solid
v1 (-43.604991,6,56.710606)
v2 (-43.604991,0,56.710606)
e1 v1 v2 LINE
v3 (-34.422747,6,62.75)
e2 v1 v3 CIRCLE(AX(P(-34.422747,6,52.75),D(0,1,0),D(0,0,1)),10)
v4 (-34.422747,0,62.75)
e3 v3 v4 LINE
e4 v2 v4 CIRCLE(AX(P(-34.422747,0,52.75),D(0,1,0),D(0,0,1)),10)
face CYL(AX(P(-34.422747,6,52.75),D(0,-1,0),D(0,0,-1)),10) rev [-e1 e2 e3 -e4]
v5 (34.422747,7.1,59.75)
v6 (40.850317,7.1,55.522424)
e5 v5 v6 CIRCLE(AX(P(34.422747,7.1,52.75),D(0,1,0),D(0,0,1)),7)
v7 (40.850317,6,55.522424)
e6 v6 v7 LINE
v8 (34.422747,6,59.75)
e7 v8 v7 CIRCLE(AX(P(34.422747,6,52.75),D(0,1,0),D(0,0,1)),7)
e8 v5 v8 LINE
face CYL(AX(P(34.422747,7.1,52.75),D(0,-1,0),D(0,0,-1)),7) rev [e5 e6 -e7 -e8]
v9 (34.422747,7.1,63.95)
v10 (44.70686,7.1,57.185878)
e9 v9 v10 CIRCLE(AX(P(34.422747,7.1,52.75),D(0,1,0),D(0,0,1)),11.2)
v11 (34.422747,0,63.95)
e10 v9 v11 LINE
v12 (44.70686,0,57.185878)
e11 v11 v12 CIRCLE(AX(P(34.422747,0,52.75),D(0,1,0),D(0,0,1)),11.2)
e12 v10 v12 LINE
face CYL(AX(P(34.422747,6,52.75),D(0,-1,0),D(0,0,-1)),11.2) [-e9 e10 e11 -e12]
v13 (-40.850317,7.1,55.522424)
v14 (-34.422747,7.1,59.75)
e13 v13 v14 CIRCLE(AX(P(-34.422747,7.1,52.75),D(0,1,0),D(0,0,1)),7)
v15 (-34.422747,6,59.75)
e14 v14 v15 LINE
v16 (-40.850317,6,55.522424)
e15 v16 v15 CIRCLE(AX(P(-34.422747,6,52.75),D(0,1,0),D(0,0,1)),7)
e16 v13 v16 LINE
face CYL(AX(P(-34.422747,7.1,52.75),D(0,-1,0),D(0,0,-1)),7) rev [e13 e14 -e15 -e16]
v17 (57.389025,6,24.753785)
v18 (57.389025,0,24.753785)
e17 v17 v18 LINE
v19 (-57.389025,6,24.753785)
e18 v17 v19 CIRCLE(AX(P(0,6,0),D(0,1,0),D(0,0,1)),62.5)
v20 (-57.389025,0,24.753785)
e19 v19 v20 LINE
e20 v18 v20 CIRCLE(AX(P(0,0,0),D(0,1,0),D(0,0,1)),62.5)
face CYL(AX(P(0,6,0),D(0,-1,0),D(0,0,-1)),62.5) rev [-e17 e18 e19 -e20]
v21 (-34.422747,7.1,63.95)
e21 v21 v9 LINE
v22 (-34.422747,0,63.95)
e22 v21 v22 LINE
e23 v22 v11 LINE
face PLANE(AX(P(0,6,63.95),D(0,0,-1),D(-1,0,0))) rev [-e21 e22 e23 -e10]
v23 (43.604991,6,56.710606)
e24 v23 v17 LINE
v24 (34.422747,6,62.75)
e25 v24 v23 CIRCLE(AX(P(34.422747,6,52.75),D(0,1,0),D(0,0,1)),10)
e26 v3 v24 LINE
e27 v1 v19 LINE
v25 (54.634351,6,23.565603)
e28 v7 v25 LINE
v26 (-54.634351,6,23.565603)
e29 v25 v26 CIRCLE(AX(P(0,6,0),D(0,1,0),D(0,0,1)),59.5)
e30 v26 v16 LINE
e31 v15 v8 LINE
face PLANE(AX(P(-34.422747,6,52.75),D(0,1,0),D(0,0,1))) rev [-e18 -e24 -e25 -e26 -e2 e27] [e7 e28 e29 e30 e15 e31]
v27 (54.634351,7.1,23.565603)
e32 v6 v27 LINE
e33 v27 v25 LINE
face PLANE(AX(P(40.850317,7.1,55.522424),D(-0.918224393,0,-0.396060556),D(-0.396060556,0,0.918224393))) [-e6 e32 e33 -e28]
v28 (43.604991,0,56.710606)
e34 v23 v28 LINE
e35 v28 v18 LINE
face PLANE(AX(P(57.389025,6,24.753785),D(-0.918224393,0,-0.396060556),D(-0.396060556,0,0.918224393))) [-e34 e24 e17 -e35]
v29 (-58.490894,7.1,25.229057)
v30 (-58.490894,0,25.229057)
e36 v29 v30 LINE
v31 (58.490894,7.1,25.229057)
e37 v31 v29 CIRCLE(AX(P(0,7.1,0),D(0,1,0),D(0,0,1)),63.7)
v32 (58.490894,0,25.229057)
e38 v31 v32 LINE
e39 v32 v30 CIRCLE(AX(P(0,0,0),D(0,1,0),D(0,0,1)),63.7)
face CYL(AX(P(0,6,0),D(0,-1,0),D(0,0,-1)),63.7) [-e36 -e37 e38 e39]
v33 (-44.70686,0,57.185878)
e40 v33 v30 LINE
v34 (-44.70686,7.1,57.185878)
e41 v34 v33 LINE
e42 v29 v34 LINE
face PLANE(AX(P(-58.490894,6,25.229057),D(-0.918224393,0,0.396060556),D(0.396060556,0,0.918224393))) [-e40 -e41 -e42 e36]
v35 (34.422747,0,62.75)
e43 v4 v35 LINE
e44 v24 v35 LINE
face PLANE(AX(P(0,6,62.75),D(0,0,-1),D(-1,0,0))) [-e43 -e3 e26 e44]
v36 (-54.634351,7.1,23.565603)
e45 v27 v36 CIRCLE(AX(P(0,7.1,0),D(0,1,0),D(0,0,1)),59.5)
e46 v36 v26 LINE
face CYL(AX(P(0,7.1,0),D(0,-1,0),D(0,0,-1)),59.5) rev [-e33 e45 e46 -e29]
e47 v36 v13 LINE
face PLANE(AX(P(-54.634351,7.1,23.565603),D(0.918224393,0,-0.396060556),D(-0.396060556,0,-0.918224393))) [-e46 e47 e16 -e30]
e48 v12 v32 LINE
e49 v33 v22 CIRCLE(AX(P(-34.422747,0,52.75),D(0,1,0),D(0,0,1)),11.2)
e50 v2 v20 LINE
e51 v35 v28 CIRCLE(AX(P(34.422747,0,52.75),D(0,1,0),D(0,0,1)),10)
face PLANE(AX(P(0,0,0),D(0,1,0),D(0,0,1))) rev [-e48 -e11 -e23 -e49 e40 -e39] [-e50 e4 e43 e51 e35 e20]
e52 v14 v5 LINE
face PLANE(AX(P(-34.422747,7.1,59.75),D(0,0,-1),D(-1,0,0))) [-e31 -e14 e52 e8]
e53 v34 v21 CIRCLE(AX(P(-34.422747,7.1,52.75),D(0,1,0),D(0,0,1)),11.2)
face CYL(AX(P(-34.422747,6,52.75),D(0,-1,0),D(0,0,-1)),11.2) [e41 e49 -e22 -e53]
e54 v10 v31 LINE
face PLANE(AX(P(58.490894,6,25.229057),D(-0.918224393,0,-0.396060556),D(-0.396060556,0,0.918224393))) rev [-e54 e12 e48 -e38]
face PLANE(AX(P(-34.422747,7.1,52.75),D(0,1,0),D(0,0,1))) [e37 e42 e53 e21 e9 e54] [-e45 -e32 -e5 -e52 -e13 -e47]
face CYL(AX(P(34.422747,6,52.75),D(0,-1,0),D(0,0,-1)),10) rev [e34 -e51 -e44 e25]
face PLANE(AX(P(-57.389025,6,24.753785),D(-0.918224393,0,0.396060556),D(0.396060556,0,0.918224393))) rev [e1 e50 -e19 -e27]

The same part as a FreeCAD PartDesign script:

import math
import FreeCAD as App
import Part
import Sketcher

V = App.Vector
Q = App.Units.Quantity

doc = App.newDocument("Part")
body = doc.addObject("PartDesign::Body", "Body")

# Sketch on XZ plane
sketch1 = doc.addObject("Sketcher::SketchObject", "Sketch")
body.addObject(sketch1)
sketch1.AttachmentSupport = (doc.XZ_Plane, [""])
sketch1.MapMode = "FlatFace"
sketch1.addGeometry([
    Part.ArcOfCircle(Part.Circle(V(34, 53, 0), V(0, 0, 1), 11), math.radians(23), math.radians(90)),  # 0
    Part.LineSegment(V(45, 57, 0), V(58, 25, 0)),  # 1
    Part.ArcOfCircle(Part.Circle(V(0, 0, 0), V(0, 0, 1), 64), math.radians(157), math.radians(383)),  # 2
    Part.LineSegment(V(-58, 25, 0), V(-45, 57, 0)),  # 3
    Part.ArcOfCircle(Part.Circle(V(-34, 53, 0), V(0, 0, 1), 11), math.radians(90), math.radians(157)),  # 4
    Part.LineSegment(V(-34, 64, 0), V(34, 64, 0)),  # 5
    Part.ArcOfCircle(Part.Circle(V(34, 53, 0), V(0, 0, 1), 10), math.radians(23), math.radians(90)),  # 6
    Part.LineSegment(V(34, 63, 0), V(-34, 63, 0)),  # 7
    Part.ArcOfCircle(Part.Circle(V(-34, 53, 0), V(0, 0, 1), 10), math.radians(90), math.radians(157)),  # 8
    Part.LineSegment(V(-44, 57, 0), V(-57, 25, 0)),  # 9
    Part.ArcOfCircle(Part.Circle(V(0, 0, 0), V(0, 0, 1), 62), math.radians(157), math.radians(360)),  # 10
    Part.ArcOfCircle(Part.Circle(V(0, 0, 0), V(0, 0, 1), 63), math.radians(0), math.radians(23)),  # 11
    Part.LineSegment(V(57, 25, 0), V(44, 57, 0)),  # 12
], False)
sketch1.addConstraint([
    Sketcher.Constraint("Tangent", 0, 1, 1, 1),
    Sketcher.Constraint("Tangent", 1, 2, 2, 2),
    Sketcher.Constraint("Tangent", 2, 1, 3, 1),
    Sketcher.Constraint("Tangent", 3, 2, 4, 2),
    Sketcher.Constraint("Tangent", 4, 1, 5, 1),
    Sketcher.Constraint("Tangent", 5, 2, 0, 2),
    Sketcher.Constraint("Tangent", 6, 2, 7, 1),
    Sketcher.Constraint("Tangent", 7, 2, 8, 1),
    Sketcher.Constraint("Tangent", 8, 2, 9, 1),
    Sketcher.Constraint("Tangent", 9, 2, 10, 1),
    Sketcher.Constraint("Tangent", 10, 2, 11, 1),
    Sketcher.Constraint("Tangent", 11, 2, 12, 1),
    Sketcher.Constraint("Tangent", 12, 2, 6, 1),
    Sketcher.Constraint("Horizontal", 5),
    Sketcher.Constraint("Horizontal", 7),
    Sketcher.Constraint("Coincident", 2, 3, -1, 1),
    Sketcher.Constraint("Coincident", 10, 3, -1, 1),
    Sketcher.Constraint("Coincident", 6, 3, 0, 3),
    Sketcher.Constraint("Coincident", 8, 3, 4, 3),
    Sketcher.Constraint("Equal", 0, 4),
    Sketcher.Constraint("Equal", 10, 11),
    Sketcher.Constraint("PointOnObject", 10, 2, -1),
    Sketcher.Constraint("Parallel", 3, 9),
    Sketcher.Constraint("Horizontal", 1, 2, 2, 1),
    Sketcher.Constraint("Radius", 6, Q("10 mm")),
    Sketcher.Constraint("Radius", 0, Q("11.2 mm")),
    Sketcher.Constraint("Radius", 2, Q("63.7 mm")),
    Sketcher.Constraint("DistanceY", -1, 1, 0, 3, Q("52.75 mm")),
    Sketcher.Constraint("DistanceX", 5, 1, 5, 2, Q("68.845493 mm")),
])
pad1 = doc.addObject("PartDesign::Pad", "Pad")
body.addObject(pad1)
pad1.Profile = sketch1
pad1.Length = 6
pad1.Reversed = True

# Sketch on XZ plane
sketch2 = doc.addObject("Sketcher::SketchObject", "Sketch001")
body.addObject(sketch2)
sketch2.AttachmentSupport = (doc.XZ_Plane, [""])
sketch2.MapMode = "FlatFace"
sketch2.AttachmentOffset = App.Placement(V(0, 0, -6), App.Rotation())
sketch2.addGeometry([
    Part.LineSegment(V(-58, 25, 0), V(-45, 57, 0)),  # 0
    Part.ArcOfCircle(Part.Circle(V(-34, 53, 0), V(0, 0, 1), 11), math.radians(90), math.radians(157)),  # 1
    Part.LineSegment(V(-34, 64, 0), V(34, 64, 0)),  # 2
    Part.ArcOfCircle(Part.Circle(V(34, 53, 0), V(0, 0, 1), 11), math.radians(23), math.radians(90)),  # 3
    Part.LineSegment(V(45, 57, 0), V(58, 25, 0)),  # 4
    Part.ArcOfCircle(Part.Circle(V(0, 0, 0), V(0, 0, 1), 64), math.radians(157), math.radians(383)),  # 5
    Part.LineSegment(V(55, 24, 0), V(41, 56, 0)),  # 6
    Part.ArcOfCircle(Part.Circle(V(34, 53, 0), V(0, 0, 1), 7), math.radians(23), math.radians(90)),  # 7
    Part.LineSegment(V(34, 60, 0), V(-34, 60, 0)),  # 8
    Part.ArcOfCircle(Part.Circle(V(-34, 53, 0), V(0, 0, 1), 7), math.radians(90), math.radians(157)),  # 9
    Part.LineSegment(V(-41, 56, 0), V(-55, 24, 0)),  # 10
    Part.ArcOfCircle(Part.Circle(V(0, 0, 0), V(0, 0, 1), 60), math.radians(157), math.radians(383)),  # 11
], False)
sketch2.addConstraint([
    Sketcher.Constraint("Tangent", 0, 2, 1, 2),
    Sketcher.Constraint("Tangent", 1, 1, 2, 1),
    Sketcher.Constraint("Tangent", 2, 2, 3, 2),
    Sketcher.Constraint("Tangent", 3, 1, 4, 1),
    Sketcher.Constraint("Tangent", 4, 2, 5, 2),
    Sketcher.Constraint("Tangent", 5, 1, 0, 1),
    Sketcher.Constraint("Tangent", 6, 2, 7, 1),
    Sketcher.Constraint("Tangent", 7, 2, 8, 1),
    Sketcher.Constraint("Tangent", 8, 2, 9, 1),
    Sketcher.Constraint("Tangent", 9, 2, 10, 1),
    Sketcher.Constraint("Tangent", 10, 2, 11, 1),
    Sketcher.Constraint("Tangent", 11, 2, 6, 1),
    Sketcher.Constraint("Horizontal", 2),
    Sketcher.Constraint("Horizontal", 8),
    Sketcher.Constraint("Coincident", 5, 3, -1, 1),
    Sketcher.Constraint("Coincident", 11, 3, -1, 1),
    Sketcher.Constraint("Coincident", 7, 3, 3, 3),
    Sketcher.Constraint("Coincident", 9, 3, 1, 3),
    Sketcher.Constraint("Equal", 1, 3),
    Sketcher.Constraint("Parallel", 4, 6),
    Sketcher.Constraint("Horizontal", 0, 2, 3, 1),
    Sketcher.Constraint("Radius", 7, Q("7 mm")),
    Sketcher.Constraint("Radius", 1, Q("11.2 mm")),
    Sketcher.Constraint("Radius", 5, Q("63.7 mm")),
    Sketcher.Constraint("DistanceY", -1, 1, 1, 3, Q("52.75 mm")),
    Sketcher.Constraint("DistanceX", 2, 1, 2, 2, Q("68.845493 mm")),
])
pad2 = doc.addObject("PartDesign::Pad", "Pad001")
body.addObject(pad2)
pad2.Profile = sketch2
pad2.Length = 1.1
pad2.Reversed = True

doc.recompute()
